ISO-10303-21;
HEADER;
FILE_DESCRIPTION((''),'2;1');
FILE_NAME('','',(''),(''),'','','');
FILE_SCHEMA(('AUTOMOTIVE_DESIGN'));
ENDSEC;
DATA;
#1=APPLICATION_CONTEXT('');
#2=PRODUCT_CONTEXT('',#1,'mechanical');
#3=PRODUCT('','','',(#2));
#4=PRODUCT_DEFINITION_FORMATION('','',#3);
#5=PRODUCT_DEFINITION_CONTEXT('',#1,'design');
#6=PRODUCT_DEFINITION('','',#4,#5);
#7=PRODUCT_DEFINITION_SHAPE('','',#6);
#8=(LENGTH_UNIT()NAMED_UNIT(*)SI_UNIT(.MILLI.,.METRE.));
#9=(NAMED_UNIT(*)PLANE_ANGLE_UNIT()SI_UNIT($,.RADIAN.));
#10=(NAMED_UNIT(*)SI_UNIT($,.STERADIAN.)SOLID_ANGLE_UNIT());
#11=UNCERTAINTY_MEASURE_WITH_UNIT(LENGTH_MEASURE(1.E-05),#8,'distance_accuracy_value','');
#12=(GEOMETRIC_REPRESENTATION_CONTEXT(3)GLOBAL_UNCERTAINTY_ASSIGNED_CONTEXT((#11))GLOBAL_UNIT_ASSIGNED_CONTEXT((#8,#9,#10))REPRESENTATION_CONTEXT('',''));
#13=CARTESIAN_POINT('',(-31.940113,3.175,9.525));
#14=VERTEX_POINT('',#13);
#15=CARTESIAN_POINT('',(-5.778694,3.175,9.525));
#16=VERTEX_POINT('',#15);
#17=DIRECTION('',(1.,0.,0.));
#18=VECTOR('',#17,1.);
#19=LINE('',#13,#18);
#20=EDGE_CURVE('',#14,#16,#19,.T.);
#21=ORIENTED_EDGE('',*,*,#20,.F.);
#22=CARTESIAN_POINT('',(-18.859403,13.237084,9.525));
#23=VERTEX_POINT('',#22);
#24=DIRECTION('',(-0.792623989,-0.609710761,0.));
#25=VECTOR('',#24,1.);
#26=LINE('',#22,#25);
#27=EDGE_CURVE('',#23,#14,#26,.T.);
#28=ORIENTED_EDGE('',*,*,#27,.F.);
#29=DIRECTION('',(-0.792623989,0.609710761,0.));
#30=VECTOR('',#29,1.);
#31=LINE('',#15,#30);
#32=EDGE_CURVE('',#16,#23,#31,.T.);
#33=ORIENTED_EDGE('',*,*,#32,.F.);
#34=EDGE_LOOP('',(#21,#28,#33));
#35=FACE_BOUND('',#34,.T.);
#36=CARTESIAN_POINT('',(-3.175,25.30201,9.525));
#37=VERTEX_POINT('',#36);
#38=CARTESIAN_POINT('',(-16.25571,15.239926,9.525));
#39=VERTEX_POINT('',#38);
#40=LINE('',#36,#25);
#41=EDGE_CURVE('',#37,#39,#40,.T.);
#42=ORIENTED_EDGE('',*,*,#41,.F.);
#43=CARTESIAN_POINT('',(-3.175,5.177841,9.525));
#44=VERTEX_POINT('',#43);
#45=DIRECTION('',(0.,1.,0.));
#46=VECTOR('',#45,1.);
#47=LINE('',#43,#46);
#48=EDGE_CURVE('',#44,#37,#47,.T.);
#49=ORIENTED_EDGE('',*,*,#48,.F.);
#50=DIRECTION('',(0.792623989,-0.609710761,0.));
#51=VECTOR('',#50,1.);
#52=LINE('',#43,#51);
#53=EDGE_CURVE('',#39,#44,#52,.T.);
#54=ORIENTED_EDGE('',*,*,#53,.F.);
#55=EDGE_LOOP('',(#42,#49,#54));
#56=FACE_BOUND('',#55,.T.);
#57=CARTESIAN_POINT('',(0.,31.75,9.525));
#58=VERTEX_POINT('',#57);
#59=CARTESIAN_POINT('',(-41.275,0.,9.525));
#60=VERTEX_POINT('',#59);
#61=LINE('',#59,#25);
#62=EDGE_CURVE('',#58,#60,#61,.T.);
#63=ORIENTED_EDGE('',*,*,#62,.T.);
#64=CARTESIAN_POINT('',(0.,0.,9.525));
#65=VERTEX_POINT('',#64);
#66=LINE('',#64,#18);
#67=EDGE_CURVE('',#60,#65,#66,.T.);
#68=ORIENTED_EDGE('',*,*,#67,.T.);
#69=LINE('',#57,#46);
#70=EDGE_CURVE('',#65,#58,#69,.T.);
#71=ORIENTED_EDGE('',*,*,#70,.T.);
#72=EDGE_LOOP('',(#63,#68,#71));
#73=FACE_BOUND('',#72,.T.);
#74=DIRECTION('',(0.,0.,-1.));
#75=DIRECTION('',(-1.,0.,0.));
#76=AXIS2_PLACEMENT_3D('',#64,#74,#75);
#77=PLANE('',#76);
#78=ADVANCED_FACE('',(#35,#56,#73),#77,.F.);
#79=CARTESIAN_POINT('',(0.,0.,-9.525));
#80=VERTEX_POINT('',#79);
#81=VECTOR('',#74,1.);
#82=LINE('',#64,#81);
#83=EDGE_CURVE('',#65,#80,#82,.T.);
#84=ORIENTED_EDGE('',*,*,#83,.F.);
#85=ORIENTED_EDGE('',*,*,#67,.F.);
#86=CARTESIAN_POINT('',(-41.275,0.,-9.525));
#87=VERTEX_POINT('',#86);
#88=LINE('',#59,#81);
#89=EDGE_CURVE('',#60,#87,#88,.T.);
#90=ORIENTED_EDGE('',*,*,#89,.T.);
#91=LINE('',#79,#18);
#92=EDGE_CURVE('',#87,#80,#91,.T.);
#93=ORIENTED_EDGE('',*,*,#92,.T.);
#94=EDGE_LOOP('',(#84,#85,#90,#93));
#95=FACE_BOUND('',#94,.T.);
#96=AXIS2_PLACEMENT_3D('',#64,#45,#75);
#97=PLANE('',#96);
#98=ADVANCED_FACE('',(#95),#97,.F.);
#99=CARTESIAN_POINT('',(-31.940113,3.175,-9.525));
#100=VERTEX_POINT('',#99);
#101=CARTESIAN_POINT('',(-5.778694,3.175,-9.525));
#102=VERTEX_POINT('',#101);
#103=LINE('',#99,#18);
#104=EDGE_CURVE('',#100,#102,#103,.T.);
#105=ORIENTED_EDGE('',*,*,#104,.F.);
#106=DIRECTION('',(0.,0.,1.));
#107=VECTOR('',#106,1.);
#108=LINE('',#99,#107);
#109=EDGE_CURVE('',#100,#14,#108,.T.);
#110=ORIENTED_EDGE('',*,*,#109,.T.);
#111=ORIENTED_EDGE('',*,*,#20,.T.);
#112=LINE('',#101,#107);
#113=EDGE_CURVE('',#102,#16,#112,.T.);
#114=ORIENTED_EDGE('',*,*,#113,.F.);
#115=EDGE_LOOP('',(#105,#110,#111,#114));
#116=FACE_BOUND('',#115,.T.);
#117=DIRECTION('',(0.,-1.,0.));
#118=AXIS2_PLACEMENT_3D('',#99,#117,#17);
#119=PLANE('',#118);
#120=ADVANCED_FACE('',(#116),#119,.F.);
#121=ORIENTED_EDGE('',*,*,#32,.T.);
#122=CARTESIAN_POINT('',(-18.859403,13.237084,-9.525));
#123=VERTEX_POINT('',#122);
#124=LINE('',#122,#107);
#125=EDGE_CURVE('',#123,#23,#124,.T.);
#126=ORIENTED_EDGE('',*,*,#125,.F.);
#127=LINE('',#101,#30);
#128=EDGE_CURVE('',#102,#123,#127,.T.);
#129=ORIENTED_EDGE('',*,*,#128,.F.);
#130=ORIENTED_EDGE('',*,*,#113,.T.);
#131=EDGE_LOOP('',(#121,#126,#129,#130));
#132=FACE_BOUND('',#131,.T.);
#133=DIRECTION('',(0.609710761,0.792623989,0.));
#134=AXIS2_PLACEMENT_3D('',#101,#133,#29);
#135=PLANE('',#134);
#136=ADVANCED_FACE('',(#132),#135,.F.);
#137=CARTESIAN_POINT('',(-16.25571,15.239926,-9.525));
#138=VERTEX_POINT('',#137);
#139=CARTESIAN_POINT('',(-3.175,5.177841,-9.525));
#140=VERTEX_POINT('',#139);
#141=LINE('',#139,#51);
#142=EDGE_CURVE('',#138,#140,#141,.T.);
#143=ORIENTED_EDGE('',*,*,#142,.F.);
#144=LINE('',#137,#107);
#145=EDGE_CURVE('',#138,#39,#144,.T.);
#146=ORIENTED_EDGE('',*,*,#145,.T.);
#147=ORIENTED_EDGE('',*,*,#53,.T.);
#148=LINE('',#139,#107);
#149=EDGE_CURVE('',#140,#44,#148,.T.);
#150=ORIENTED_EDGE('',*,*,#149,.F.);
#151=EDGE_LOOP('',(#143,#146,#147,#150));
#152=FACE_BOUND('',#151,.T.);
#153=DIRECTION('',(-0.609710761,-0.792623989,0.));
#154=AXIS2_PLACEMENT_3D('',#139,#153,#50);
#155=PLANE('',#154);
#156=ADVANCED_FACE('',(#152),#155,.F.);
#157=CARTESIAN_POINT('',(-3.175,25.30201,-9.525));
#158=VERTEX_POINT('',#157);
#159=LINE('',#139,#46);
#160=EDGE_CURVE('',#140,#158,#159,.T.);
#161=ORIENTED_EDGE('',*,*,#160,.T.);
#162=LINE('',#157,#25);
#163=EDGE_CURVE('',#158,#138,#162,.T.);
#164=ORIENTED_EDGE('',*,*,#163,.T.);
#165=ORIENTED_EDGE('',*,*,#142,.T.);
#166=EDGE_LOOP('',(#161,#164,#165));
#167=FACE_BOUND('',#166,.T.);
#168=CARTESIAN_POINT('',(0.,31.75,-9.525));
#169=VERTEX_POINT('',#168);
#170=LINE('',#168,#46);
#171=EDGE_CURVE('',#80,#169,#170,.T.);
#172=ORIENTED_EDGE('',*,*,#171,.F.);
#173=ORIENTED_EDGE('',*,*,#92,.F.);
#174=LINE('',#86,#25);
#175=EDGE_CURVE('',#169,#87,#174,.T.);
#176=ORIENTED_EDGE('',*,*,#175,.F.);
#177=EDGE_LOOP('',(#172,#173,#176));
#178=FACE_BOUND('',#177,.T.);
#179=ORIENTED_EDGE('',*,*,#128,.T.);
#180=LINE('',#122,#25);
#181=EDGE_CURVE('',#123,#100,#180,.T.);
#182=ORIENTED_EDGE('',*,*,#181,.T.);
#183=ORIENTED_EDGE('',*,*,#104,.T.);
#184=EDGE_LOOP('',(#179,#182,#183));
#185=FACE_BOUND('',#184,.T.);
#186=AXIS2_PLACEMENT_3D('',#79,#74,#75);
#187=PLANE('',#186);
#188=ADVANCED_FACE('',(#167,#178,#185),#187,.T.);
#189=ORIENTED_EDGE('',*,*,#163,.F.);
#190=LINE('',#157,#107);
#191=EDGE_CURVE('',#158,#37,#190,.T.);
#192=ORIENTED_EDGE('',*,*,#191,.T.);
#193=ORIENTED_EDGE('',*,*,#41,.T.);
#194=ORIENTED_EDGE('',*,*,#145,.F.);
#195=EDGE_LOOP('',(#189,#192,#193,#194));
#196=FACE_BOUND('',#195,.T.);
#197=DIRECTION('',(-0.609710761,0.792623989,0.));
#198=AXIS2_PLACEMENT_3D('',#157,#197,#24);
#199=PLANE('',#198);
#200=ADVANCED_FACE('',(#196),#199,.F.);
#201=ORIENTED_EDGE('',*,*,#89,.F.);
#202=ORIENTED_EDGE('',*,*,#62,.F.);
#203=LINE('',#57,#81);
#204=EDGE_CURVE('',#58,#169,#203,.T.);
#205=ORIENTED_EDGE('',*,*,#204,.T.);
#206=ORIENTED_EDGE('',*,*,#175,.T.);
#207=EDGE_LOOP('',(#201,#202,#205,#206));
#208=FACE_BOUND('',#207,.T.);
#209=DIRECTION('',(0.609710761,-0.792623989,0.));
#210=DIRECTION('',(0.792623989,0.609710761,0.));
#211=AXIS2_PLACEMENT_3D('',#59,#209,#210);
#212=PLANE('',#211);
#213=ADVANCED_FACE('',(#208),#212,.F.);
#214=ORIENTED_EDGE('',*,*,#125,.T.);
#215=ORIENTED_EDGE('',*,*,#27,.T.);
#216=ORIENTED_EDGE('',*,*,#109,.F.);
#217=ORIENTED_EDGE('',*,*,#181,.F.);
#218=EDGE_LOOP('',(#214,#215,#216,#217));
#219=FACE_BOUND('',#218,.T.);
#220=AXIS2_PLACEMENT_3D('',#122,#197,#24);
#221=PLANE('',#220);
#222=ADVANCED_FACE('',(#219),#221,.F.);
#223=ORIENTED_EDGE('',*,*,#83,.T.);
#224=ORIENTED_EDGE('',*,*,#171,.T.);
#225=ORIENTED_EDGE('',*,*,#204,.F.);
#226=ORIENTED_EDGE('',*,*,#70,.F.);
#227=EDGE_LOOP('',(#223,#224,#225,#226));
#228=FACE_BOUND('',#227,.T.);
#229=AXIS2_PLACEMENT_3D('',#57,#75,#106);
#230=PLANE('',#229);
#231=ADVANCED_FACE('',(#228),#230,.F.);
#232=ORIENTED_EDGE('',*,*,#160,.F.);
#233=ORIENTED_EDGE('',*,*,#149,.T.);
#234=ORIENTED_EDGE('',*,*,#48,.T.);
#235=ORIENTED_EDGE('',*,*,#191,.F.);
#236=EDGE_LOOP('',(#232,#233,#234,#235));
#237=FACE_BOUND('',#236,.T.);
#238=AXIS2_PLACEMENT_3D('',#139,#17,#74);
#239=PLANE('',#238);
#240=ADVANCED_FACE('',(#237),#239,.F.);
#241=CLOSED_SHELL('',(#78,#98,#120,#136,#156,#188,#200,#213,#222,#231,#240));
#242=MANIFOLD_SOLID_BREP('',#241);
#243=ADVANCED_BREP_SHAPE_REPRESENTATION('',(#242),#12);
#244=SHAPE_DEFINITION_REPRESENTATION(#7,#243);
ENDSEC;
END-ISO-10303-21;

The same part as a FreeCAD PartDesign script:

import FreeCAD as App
import Part
import Sketcher
Q = App.Units.Quantity


def add_polygon(sketch, points):
    """Adds a closed chain of lines whose ends are joined by coincident constraints."""
    first, n = sketch.GeometryCount, len(points)
    for a, b in zip(points, points[1:] + points[:1]):
        sketch.addGeometry(Part.LineSegment(App.Vector(*a, 0), App.Vector(*b, 0)), False)
    for i in range(n):
        sketch.addConstraint(Sketcher.Constraint("Coincident", first + i, 2, first + (i + 1) % n, 1))

doc = App.newDocument("Part")
body = doc.addObject("PartDesign::Body", "Body")

# Sketch on XY plane
sketch1 = body.newObject("Sketcher::SketchObject", "Sketch")
sketch1.AttachmentSupport = (doc.getObject("XY_Plane"), [""])
sketch1.MapMode = "FlatFace"
add_polygon(sketch1, [(-41, 0), (0, 0), (0, 32)])  # lines 0-2
sketch1.addConstraint(Sketcher.Constraint("Horizontal", 0))
sketch1.addConstraint(Sketcher.Constraint("Vertical", 1))
sketch1.addConstraint(Sketcher.Constraint("Coincident", 0, 2, -1, 1))
sketch1.addConstraint(Sketcher.Constraint("DistanceY", 1, 1, 1, 2, Q("1.25 in")))
sketch1.addConstraint(Sketcher.Constraint("DistanceX", 0, 1, 0, 2, Q("1.625 in")))
pad1 = body.newObject("PartDesign::Pad", "Pad")
pad1.Profile = sketch1
pad1.Length = Q("0.75 in")
pad1.Midplane = True

# Sketch on XY plane
sketch2 = body.newObject("Sketcher::SketchObject", "Sketch001")
sketch2.AttachmentSupport = (doc.getObject("XY_Plane"), [""])
sketch2.MapMode = "FlatFace"
add_polygon(sketch2, [(-16, 15), (-3, 5), (-3, 25)])  # lines 0-2
add_polygon(sketch2, [(-6, 3), (-19, 13), (-32, 3)])  # lines 3-5
sketch2.addConstraint(Sketcher.Constraint("Vertical", 1))
sketch2.addConstraint(Sketcher.Constraint("Horizontal", 5))
sketch2.addConstraint(Sketcher.Constraint("Parallel", 0, 3))
sketch2.addConstraint(Sketcher.Constraint("Parallel", 2, 4))
sketch2.addConstraint(Sketcher.Constraint("Equal", 0, 2))
sketch2.addConstraint(Sketcher.Constraint("Equal", 2, 3))
sketch2.addConstraint(Sketcher.Constraint("DistanceX", 0, 2, -1, 1, Q("0.125 in")))
sketch2.addConstraint(Sketcher.Constraint("DistanceY", -1, 1, 4, 2, Q("0.125 in")))
sketch2.addConstraint(Sketcher.Constraint("DistanceX", 5, 1, 5, 2, Q("26.161419 mm")))
sketch2.addConstraint(Sketcher.Constraint("DistanceY", 1, 1, 1, 2, Q("20.124169 mm")))
sketch2.addConstraint(Sketcher.Constraint("DistanceY", -1, 1, 0, 2, Q("5.177841 mm")))
sketch2.addConstraint(Sketcher.Constraint("DistanceX", 3, 2, -1, 1, Q("18.859403 mm")))
pocket1 = body.newObject("PartDesign::Pocket", "Pocket")
pocket1.Profile = sketch2
pocket1.Type = "ThroughAll"
pocket1.Midplane = True

doc.recompute()
